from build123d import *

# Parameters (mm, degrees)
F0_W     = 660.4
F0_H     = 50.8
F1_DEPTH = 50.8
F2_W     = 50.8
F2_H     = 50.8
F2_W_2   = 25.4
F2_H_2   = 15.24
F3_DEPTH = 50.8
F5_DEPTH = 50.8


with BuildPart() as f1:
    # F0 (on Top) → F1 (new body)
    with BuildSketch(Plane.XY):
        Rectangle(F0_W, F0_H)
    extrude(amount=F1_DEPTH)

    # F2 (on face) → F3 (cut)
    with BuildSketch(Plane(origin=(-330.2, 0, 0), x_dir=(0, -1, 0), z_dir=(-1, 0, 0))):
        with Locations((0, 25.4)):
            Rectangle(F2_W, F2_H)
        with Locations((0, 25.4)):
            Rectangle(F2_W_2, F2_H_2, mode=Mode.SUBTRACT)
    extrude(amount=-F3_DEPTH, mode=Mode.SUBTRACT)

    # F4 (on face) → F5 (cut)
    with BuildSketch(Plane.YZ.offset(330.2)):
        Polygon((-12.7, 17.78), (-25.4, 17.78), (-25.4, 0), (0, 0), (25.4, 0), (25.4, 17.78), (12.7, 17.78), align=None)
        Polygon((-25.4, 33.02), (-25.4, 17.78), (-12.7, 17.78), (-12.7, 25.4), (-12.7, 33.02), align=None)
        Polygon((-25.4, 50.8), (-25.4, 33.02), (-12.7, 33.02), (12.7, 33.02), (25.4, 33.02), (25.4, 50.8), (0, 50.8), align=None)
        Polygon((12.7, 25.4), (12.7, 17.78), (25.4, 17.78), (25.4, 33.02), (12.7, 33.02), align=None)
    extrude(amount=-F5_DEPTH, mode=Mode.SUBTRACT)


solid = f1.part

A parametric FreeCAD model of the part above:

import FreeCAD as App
import Part
import Sketcher
from FreeCAD import Vector
Q = App.Units.Quantity

doc = App.newDocument("Part")
params = doc.addObject("Spreadsheet::Sheet", "Params")
for row, (alias, value) in enumerate([
    ("sketch1_width", "26 in"),
    ("sketch1_height", "2 in"),
    ("pad1_length", "2 in"),
    ("sketch2_width", "2 in"),
    ("sketch2_width2", "1 in"),
    ("sketch2_height", "0.6 in"),
    ("pocket1_length", "2 in"),
    ("sketch3_width", "2 in"),
    ("sketch3_width2", "1 in"),
    ("sketch3_height", "0.6 in"),
    ("pocket2_length", "2 in"),
], start=1):
    params.set(f"A{row}", alias)
    params.set(f"B{row}", "=" + value)
    params.setAlias(f"B{row}", alias)

body = doc.addObject("PartDesign::Body", "Body")

sketch1 = body.newObject("Sketcher::SketchObject", "Sketch")
sketch1.AttachmentSupport = (doc.getObject("XY_Plane"), [""])
sketch1.MapMode = "FlatFace"
sketch1.addGeometry([
    Part.LineSegment(Vector(-330, 25, 0), Vector(-330, -25, 0)),
    Part.LineSegment(Vector(-330, -25, 0), Vector(330, -25, 0)),
    Part.LineSegment(Vector(330, -25, 0), Vector(330, 25, 0)),
    Part.LineSegment(Vector(330, 25, 0), Vector(-330, 25, 0)),
], False)
sketch1.addConstraint([
    Sketcher.Constraint("Coincident", 0, 2, 1, 1),
    Sketcher.Constraint("Coincident", 1, 2, 2, 1),
    Sketcher.Constraint("Coincident", 2, 2, 3, 1),
    Sketcher.Constraint("Coincident", 3, 2, 0, 1),
    Sketcher.Constraint("Vertical", 0),
    Sketcher.Constraint("Horizontal", 1),
    Sketcher.Constraint("Vertical", 2),
    Sketcher.Constraint("Horizontal", 3),
    Sketcher.Constraint("Symmetric", 0, 2, 2, 2, -1, 1),
    Sketcher.Constraint("DistanceX", 1, 1, 1, 2, Q("26 in")),
    Sketcher.Constraint("DistanceY", 0, 2, 0, 1, Q("2 in")),
])
sketch1.setExpression("Constraints[9]", "Params.sketch1_width")
sketch1.setExpression("Constraints[10]", "Params.sketch1_height")
pad1 = body.newObject("PartDesign::Pad", "Pad")
pad1.Profile = sketch1
pad1.setExpression("Length", "Params.pad1_length")

sketch2 = body.newObject("Sketcher::SketchObject", "Sketch001")
sketch2.AttachmentSupport = (doc.getObject("YZ_Plane"), [""])
sketch2.MapMode = "FlatFace"
sketch2.AttachmentOffset = App.Placement(Vector(0, 0, -13 * 25.4), App.Rotation())
sketch2.addGeometry([
    Part.LineSegment(Vector(25, 51, 0), Vector(25, 0, 0)),
    Part.LineSegment(Vector(25, 0, 0), Vector(-25, 0, 0)),
    Part.LineSegment(Vector(-25, 0, 0), Vector(-25, 51, 0)),
    Part.LineSegment(Vector(-25, 51, 0), Vector(25, 51, 0)),
    Part.LineSegment(Vector(-13, 18, 0), Vector(13, 18, 0)),
    Part.LineSegment(Vector(13, 18, 0), Vector(13, 33, 0)),
    Part.LineSegment(Vector(13, 33, 0), Vector(-13, 33, 0)),
    Part.LineSegment(Vector(-13, 33, 0), Vector(-13, 18, 0)),
], False)
sketch2.addConstraint([
    Sketcher.Constraint("Coincident", 0, 2, 1, 1),
    Sketcher.Constraint("Coincident", 1, 2, 2, 1),
    Sketcher.Constraint("Coincident", 2, 2, 3, 1),
    Sketcher.Constraint("Coincident", 3, 2, 0, 1),
    Sketcher.Constraint("Coincident", 4, 2, 5, 1),
    Sketcher.Constraint("Coincident", 5, 2, 6, 1),
    Sketcher.Constraint("Coincident", 6, 2, 7, 1),
    Sketcher.Constraint("Coincident", 7, 2, 4, 1),
    Sketcher.Constraint("Vertical", 0),
    Sketcher.Constraint("Horizontal", 1),
    Sketcher.Constraint("Vertical", 2),
    Sketcher.Constraint("Horizontal", 3),
    Sketcher.Constraint("Horizontal", 4),
    Sketcher.Constraint("Vertical", 5),
    Sketcher.Constraint("Horizontal", 6),
    Sketcher.Constraint("Vertical", 7),
    Sketcher.Constraint("Symmetric", 0, 2, 1, 2, -1, 1),
    Sketcher.Constraint("Equal", 3, 0),
    Sketcher.Constraint("DistanceX", 1, 2, 1, 1, Q("2 in")),
    Sketcher.Constraint("DistanceX", 4, 1, 4, 2, Q("1 in")),
    Sketcher.Constraint("DistanceY", 5, 1, 5, 2, Q("0.6 in")),
    Sketcher.Constraint("DistanceX", -1, 1, 4, 2, Q("0.5 in")),
    Sketcher.Constraint("DistanceY", -1, 1, 4, 2, Q("0.7 in")),
])
sketch2.setExpression("Constraints[18]", "Params.sketch2_width")
sketch2.setExpression("Constraints[19]", "Params.sketch2_width2")
sketch2.setExpression("Constraints[20]", "Params.sketch2_height")
pocket1 = body.newObject("PartDesign::Pocket", "Pocket")
pocket1.Profile = sketch2
pocket1.setExpression("Length", "Params.pocket1_length")
pocket1.Reversed = True

sketch3 = body.newObject("Sketcher::SketchObject", "Sketch002")
sketch3.AttachmentSupport = (doc.getObject("YZ_Plane"), [""])
sketch3.MapMode = "FlatFace"
sketch3.AttachmentOffset = App.Placement(Vector(0, 0, 13 * 25.4), App.Rotation())
sketch3.addGeometry([
    Part.LineSegment(Vector(-25, 0, 0), Vector(25, 0, 0)),
    Part.LineSegment(Vector(25, 0, 0), Vector(25, 51, 0)),
    Part.LineSegment(Vector(25, 51, 0), Vector(-25, 51, 0)),
    Part.LineSegment(Vector(-25, 51, 0), Vector(-25, 0, 0)),
    Part.LineSegment(Vector(13, 18, 0), Vector(-13, 18, 0)),
    Part.LineSegment(Vector(-13, 18, 0), Vector(-13, 33, 0)),
    Part.LineSegment(Vector(-13, 33, 0), Vector(13, 33, 0)),
    Part.LineSegment(Vector(13, 33, 0), Vector(13, 18, 0)),
], False)
sketch3.addConstraint([
    Sketcher.Constraint("Coincident", 0, 2, 1, 1),
    Sketcher.Constraint("Coincident", 1, 2, 2, 1),
    Sketcher.Constraint("Coincident", 2, 2, 3, 1),
    Sketcher.Constraint("Coincident", 3, 2, 0, 1),
    Sketcher.Constraint("Coincident", 4, 2, 5, 1),
    Sketcher.Constraint("Coincident", 5, 2, 6, 1),
    Sketcher.Constraint("Coincident", 6, 2, 7, 1),
    Sketcher.Constraint("Coincident", 7, 2, 4, 1),
    Sketcher.Constraint("Horizontal", 0),
    Sketcher.Constraint("Vertical", 1),
    Sketcher.Constraint("Horizontal", 2),
    Sketcher.Constraint("Vertical", 3),
    Sketcher.Constraint("Horizontal", 4),
    Sketcher.Constraint("Vertical", 5),
    Sketcher.Constraint("Horizontal", 6),
    Sketcher.Constraint("Vertical", 7),
    Sketcher.Constraint("Symmetric", 0, 2, 3, 2, -1, 1),
    Sketcher.Constraint("Equal", 2, 1),
    Sketcher.Constraint("DistanceX", 0, 1, 0, 2, Q("2 in")),
    Sketcher.Constraint("DistanceX", 4, 2, 4, 1, Q("1 in")),
    Sketcher.Constraint("DistanceY", 5, 1, 5, 2, Q("0.6 in")),
    Sketcher.Constraint("DistanceX", 4, 2, -1, 1, Q("0.5 in")),
    Sketcher.Constraint("DistanceY", -1, 1, 4, 2, Q("0.7 in")),
])
sketch3.setExpression("Constraints[18]", "Params.sketch3_width")
sketch3.setExpression("Constraints[19]", "Params.sketch3_width2")
sketch3.setExpression("Constraints[20]", "Params.sketch3_height")
pocket2 = body.newObject("PartDesign::Pocket", "Pocket001")
pocket2.Profile = sketch3
pocket2.setExpression("Length", "Params.pocket2_length")

doc.recompute()
